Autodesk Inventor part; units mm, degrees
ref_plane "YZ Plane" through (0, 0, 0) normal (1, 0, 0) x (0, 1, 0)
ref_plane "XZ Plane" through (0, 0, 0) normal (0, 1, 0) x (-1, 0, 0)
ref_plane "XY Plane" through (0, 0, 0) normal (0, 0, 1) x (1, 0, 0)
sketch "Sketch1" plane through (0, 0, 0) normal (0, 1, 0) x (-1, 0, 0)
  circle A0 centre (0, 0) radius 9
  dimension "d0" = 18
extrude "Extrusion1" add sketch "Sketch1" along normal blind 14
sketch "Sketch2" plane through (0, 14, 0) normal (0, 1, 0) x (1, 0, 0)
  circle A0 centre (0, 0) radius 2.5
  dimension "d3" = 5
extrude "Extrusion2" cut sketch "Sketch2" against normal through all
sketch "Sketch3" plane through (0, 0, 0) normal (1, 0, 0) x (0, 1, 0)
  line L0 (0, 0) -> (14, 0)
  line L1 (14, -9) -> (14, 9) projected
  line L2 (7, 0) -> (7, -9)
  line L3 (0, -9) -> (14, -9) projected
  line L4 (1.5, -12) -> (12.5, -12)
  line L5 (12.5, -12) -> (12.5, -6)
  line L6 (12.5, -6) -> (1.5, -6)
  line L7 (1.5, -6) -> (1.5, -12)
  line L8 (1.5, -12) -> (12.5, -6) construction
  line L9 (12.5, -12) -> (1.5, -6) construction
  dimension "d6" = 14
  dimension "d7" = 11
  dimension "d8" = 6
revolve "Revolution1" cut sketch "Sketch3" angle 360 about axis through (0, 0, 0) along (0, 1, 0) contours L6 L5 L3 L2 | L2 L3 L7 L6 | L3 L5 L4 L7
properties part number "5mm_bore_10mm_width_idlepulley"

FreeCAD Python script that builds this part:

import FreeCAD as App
import Part
import Sketcher

V = App.Vector
Q = App.Units.Quantity


def add_polygon(sketch, points):
    """Adds a closed chain of lines whose ends are joined by coincident constraints."""
    first, n = sketch.GeometryCount, len(points)
    for a, b in zip(points, points[1:] + points[:1]):
        sketch.addGeometry(Part.LineSegment(App.Vector(*a, 0), App.Vector(*b, 0)), False)
    for i in range(n):
        sketch.addConstraint(Sketcher.Constraint("Coincident", first + i, 2, first + (i + 1) % n, 1))

doc = App.newDocument("Part")
body = doc.addObject("PartDesign::Body", "Body")

# Sketch on XZ plane
sketch1 = body.newObject("Sketcher::SketchObject", "Sketch")
sketch1.AttachmentSupport = (doc.getObject("XZ_Plane"), [""])
sketch1.MapMode = "FlatFace"
sketch1.addGeometry(Part.Circle(V(0, 0, 0), V(0, 0, 1), 9), False)
sketch1.addConstraint([
    Sketcher.Constraint("Coincident", 0, 3, -1, 1),
    Sketcher.Constraint("Diameter", 0, Q("18 mm")),
])
pad1 = body.newObject("PartDesign::Pad", "Pad")
pad1.Profile = sketch1
pad1.Length = 14
pad1.Reversed = True

# Sketch on XZ plane
sketch2 = body.newObject("Sketcher::SketchObject", "Sketch001")
sketch2.AttachmentSupport = (doc.getObject("XZ_Plane"), [""])
sketch2.MapMode = "FlatFace"
sketch2.AttachmentOffset = App.Placement(V(0, 0, -14), App.Rotation())
sketch2.addGeometry(Part.Circle(V(0, 0, 0), V(0, 0, 1), 2.5), False)
sketch2.addConstraint([
    Sketcher.Constraint("Coincident", 0, 3, -1, 1),
    Sketcher.Constraint("Diameter", 0, Q("5 mm")),
])
pocket1 = body.newObject("PartDesign::Pocket", "Pocket")
pocket1.Profile = sketch2
pocket1.Type = "ThroughAll"
pocket1.Reversed = True

# Sketch on YZ plane
sketch3 = body.newObject("Sketcher::SketchObject", "Sketch002")
sketch3.AttachmentSupport = (doc.getObject("YZ_Plane"), [""])
sketch3.MapMode = "FlatFace"
add_polygon(sketch3, [(12, -6), (2, -6), (2, -12), (12, -12)])  # lines 0-3
sketch3.addConstraint([
    Sketcher.Constraint("Horizontal", 0),
    Sketcher.Constraint("Vertical", 1),
    Sketcher.Constraint("Horizontal", 2),
    Sketcher.Constraint("Vertical", 3),
    Sketcher.Constraint("DistanceX", 0, 2, 0, 1, Q("11 mm")),
    Sketcher.Constraint("DistanceY", 1, 2, 1, 1, Q("6 mm")),
    Sketcher.Constraint("DistanceY", 0, 2, -1, 1, Q("6 mm")),
    Sketcher.Constraint("DistanceX", -1, 1, 0, 2, Q("1.5 mm")),
])
groove = body.newObject("PartDesign::Groove", "Groove")
groove.Profile = sketch3
groove.ReferenceAxis = (sketch3, ["H_Axis"])
groove.Angle = 360

doc.recompute()
